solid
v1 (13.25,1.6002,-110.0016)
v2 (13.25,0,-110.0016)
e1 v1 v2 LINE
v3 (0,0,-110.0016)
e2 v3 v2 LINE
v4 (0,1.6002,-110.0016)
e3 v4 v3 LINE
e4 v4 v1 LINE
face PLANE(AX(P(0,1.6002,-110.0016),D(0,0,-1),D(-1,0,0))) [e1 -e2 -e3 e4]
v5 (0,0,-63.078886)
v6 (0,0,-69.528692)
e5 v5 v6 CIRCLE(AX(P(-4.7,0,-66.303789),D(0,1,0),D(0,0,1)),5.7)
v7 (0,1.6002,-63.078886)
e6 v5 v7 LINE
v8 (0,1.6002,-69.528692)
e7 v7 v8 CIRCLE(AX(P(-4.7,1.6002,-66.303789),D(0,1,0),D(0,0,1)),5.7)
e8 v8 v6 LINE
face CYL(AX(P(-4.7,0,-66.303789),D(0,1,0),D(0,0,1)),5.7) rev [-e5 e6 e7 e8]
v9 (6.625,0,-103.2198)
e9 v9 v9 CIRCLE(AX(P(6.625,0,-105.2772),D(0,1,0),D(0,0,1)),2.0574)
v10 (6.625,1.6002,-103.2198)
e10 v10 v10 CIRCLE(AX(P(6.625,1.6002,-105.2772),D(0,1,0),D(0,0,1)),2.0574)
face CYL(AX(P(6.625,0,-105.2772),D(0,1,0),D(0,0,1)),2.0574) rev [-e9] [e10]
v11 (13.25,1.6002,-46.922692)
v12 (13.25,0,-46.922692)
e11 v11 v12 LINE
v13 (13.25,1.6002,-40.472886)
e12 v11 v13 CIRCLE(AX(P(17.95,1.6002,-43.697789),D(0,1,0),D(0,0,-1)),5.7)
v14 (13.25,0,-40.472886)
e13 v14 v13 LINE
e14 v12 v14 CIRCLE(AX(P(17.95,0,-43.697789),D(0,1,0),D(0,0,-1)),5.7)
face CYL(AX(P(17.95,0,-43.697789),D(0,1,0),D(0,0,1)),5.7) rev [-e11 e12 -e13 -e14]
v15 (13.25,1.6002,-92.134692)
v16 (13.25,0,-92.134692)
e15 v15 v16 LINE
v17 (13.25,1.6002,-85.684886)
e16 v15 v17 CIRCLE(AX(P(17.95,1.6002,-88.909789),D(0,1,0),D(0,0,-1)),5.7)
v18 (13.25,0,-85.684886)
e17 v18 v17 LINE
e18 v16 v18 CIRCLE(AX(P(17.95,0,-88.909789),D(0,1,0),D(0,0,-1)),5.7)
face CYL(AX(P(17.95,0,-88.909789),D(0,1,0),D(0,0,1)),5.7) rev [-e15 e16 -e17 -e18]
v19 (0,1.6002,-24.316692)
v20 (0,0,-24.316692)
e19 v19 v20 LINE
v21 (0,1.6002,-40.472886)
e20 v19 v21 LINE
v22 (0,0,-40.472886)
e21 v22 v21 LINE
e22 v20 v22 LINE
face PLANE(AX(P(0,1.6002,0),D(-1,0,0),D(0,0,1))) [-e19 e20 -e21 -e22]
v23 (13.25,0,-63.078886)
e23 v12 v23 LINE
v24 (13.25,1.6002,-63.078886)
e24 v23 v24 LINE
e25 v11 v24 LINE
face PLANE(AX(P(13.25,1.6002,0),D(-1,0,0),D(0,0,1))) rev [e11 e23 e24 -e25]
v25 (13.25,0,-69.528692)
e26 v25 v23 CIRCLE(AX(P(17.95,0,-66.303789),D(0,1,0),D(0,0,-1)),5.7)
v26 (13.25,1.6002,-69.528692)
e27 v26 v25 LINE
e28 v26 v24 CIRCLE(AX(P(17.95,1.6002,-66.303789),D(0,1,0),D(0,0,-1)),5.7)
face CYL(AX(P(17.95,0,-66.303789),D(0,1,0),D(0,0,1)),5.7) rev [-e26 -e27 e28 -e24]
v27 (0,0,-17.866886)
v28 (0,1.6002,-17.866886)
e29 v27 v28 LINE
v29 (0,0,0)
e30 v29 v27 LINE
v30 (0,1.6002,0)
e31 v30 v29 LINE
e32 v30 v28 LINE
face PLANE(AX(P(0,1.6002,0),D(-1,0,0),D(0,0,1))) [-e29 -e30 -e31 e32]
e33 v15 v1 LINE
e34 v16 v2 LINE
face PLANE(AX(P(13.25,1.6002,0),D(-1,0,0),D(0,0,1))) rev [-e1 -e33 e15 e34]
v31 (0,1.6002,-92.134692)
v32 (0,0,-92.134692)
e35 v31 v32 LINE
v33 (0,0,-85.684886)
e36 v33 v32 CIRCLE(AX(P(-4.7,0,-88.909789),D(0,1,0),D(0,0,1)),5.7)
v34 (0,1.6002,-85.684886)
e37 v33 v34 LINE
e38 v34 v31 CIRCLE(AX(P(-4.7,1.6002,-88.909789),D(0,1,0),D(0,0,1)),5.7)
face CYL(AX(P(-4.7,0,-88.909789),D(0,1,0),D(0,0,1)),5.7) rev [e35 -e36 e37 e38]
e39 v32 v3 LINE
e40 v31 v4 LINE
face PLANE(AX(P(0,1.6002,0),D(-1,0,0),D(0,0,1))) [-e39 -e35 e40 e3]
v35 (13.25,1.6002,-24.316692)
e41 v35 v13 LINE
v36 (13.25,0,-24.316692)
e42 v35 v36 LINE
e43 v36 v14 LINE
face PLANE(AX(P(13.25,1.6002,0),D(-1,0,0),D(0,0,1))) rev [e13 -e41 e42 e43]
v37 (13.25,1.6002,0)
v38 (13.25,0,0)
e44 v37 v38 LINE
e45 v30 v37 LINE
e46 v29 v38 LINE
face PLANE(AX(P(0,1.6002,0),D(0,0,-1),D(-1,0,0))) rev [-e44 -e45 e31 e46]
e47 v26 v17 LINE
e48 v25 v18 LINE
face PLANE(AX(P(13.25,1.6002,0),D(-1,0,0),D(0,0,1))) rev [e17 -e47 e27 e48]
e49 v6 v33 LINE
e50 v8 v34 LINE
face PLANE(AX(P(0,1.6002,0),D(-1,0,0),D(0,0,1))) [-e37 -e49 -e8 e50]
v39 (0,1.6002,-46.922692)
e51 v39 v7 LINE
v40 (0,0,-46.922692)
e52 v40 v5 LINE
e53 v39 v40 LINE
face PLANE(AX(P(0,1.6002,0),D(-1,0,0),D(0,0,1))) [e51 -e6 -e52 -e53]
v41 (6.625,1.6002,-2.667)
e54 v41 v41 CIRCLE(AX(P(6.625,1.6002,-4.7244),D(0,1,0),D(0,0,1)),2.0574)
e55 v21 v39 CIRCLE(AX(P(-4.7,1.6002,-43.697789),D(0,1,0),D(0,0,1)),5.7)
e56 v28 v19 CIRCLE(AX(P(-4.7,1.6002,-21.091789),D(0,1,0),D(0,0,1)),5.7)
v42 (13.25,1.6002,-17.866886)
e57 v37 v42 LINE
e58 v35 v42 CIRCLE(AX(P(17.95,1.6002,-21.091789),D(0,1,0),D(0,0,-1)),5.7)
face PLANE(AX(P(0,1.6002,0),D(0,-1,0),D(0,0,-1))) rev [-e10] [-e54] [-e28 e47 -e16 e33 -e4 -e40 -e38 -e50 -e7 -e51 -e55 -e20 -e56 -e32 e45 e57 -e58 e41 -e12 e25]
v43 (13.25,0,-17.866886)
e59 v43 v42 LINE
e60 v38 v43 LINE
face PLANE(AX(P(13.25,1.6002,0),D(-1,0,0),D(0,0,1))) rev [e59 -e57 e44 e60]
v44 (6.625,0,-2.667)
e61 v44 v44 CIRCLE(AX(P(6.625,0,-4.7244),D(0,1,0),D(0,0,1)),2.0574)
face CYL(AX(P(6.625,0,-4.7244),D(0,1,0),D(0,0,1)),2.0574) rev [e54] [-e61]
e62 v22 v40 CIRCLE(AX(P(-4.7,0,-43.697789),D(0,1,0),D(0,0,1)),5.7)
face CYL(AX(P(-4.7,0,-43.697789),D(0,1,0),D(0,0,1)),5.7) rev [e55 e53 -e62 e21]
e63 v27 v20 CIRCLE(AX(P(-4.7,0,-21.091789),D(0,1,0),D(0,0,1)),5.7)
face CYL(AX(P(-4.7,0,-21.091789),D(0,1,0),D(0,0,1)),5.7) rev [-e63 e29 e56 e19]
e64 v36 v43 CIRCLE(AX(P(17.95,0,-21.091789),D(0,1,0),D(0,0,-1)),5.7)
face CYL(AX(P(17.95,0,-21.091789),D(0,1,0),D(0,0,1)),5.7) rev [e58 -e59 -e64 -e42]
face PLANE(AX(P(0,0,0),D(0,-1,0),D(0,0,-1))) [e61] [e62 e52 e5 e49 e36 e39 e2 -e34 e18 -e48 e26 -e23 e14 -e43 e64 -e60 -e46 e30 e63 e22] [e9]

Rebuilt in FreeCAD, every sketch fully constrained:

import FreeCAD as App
import Part
import Sketcher
from FreeCAD import Vector
Q = App.Units.Quantity


def add_polygon(sketch, points):
    """Adds a closed chain of lines whose ends are joined by coincident constraints."""
    first, n = sketch.GeometryCount, len(points)
    for a, b in zip(points, points[1:] + points[:1]):
        sketch.addGeometry(Part.LineSegment(App.Vector(*a, 0), App.Vector(*b, 0)), False)
    for i in range(n):
        sketch.addConstraint(Sketcher.Constraint("Coincident", first + i, 2, first + (i + 1) % n, 1))

doc = App.newDocument("Part")
body = doc.addObject("PartDesign::Body", "Body")

# Sketch on XZ plane
sketch1 = body.newObject("Sketcher::SketchObject", "Sketch")
sketch1.AttachmentSupport = (doc.getObject("XZ_Plane"), [""])
sketch1.MapMode = "FlatFace"
add_polygon(sketch1, [(0, -110), (0, 0), (13, 0), (13, -110)])  # lines 0-3
sketch1.addConstraint([
    Sketcher.Constraint("Vertical", 0),
    Sketcher.Constraint("Horizontal", 1),
    Sketcher.Constraint("Vertical", 2),
    Sketcher.Constraint("Horizontal", 3),
    Sketcher.Constraint("Coincident", 0, 2, -1, 1),
    Sketcher.Constraint("DistanceX", 1, 1, 1, 2, 13.25),
    Sketcher.Constraint("DistanceY", 0, 1, 0, 2, 110.0016),
])
pad1 = body.newObject("PartDesign::Pad", "Pad")
pad1.Profile = sketch1
pad1.Length = Q("0.063 in")
pad1.Reversed = True

# Sketch on XZ plane
sketch2 = body.newObject("Sketcher::SketchObject", "Sketch001")
sketch2.AttachmentSupport = (doc.getObject("XZ_Plane"), [""])
sketch2.MapMode = "FlatFace"
sketch2.AttachmentOffset = App.Placement(Vector(0, 0, -0.063 * 25.4), App.Rotation())
sketch2.addGeometry([
    Part.Circle(Vector(6.6, -4.7, 0), Vector(0, 0, 1), 2.1),
    Part.Circle(Vector(6.6, -105.3, 0), Vector(0, 0, 1), 2.1),
], False)
sketch2.addConstraint([
    Sketcher.Constraint("Equal", 0, 1),
    Sketcher.Constraint("Vertical", 0, 3, 1, 3),
    Sketcher.Constraint("Diameter", 0, Q("0.162 in")),
    Sketcher.Constraint("DistanceY", 0, 3, -1, 1, Q("0.186 in")),
    Sketcher.Constraint("DistanceX", -1, 1, 0, 3, 6.625),
    Sketcher.Constraint("DistanceY", 1, 3, -1, 1, 105.2772),
])
pocket1 = body.newObject("PartDesign::Pocket", "Pocket")
pocket1.Profile = sketch2
pocket1.Type = "ThroughAll"
pocket1.Reversed = True

# Sketch on XZ plane
sketch3 = body.newObject("Sketcher::SketchObject", "Sketch002")
sketch3.AttachmentSupport = (doc.getObject("XZ_Plane"), [""])
sketch3.MapMode = "FlatFace"
sketch3.AttachmentOffset = App.Placement(Vector(0, 0, -0.063 * 25.4), App.Rotation())
sketch3.addGeometry([
    Part.Circle(Vector(-5, -89, 0), Vector(0, 0, 1), 6),  # 0
    Part.Circle(Vector(-5, -66, 0), Vector(0, 0, 1), 6),  # 1
    Part.Circle(Vector(-5, -44, 0), Vector(0, 0, 1), 6),  # 2
    Part.Circle(Vector(-5, -21, 0), Vector(0, 0, 1), 6),  # 3
    Part.Circle(Vector(18, -21, 0), Vector(0, 0, 1), 6),  # 4
    Part.Circle(Vector(18, -44, 0), Vector(0, 0, 1), 6),  # 5
    Part.Circle(Vector(18, -66, 0), Vector(0, 0, 1), 6),  # 6
    Part.Circle(Vector(18, -89, 0), Vector(0, 0, 1), 6),  # 7
], False)
sketch3.addConstraint([
    Sketcher.Constraint("Equal", 0, 1),
    Sketcher.Constraint("Equal", 1, 2),
    Sketcher.Constraint("Equal", 2, 3),
    Sketcher.Constraint("Equal", 3, 4),
    Sketcher.Constraint("Equal", 4, 5),
    Sketcher.Constraint("Equal", 5, 6),
    Sketcher.Constraint("Equal", 6, 7),
    Sketcher.Constraint("Horizontal", 3, 3, 4, 3),
    Sketcher.Constraint("Horizontal", 2, 3, 5, 3),
    Sketcher.Constraint("Horizontal", 1, 3, 6, 3),
    Sketcher.Constraint("Horizontal", 0, 3, 7, 3),
    Sketcher.Constraint("Vertical", 0, 3, 1, 3),
    Sketcher.Constraint("Vertical", 1, 3, 2, 3),
    Sketcher.Constraint("Vertical", 2, 3, 3, 3),
    Sketcher.Constraint("Vertical", 4, 3, 5, 3),
    Sketcher.Constraint("Vertical", 5, 3, 6, 3),
    Sketcher.Constraint("Vertical", 6, 3, 7, 3),
    Sketcher.Constraint("Diameter", 0, 11.4),
    Sketcher.Constraint("DistanceY", 0, 3, 1, 3, Q("0.89 in")),
    Sketcher.Constraint("DistanceY", 1, 3, 2, 3, Q("0.89 in")),
    Sketcher.Constraint("DistanceY", 2, 3, 3, 3, Q("0.89 in")),
    Sketcher.Constraint("DistanceX", 0, 3, -1, 1, 4.7),
    Sketcher.Constraint("DistanceX", -1, 1, 4, 3, 17.95),
    Sketcher.Constraint("DistanceY", 0, 3, -1, 1, 88.909789),
])
pocket2 = body.newObject("PartDesign::Pocket", "Pocket001")
pocket2.Profile = sketch3
pocket2.Type = "ThroughAll"
pocket2.Reversed = True

doc.recompute()
